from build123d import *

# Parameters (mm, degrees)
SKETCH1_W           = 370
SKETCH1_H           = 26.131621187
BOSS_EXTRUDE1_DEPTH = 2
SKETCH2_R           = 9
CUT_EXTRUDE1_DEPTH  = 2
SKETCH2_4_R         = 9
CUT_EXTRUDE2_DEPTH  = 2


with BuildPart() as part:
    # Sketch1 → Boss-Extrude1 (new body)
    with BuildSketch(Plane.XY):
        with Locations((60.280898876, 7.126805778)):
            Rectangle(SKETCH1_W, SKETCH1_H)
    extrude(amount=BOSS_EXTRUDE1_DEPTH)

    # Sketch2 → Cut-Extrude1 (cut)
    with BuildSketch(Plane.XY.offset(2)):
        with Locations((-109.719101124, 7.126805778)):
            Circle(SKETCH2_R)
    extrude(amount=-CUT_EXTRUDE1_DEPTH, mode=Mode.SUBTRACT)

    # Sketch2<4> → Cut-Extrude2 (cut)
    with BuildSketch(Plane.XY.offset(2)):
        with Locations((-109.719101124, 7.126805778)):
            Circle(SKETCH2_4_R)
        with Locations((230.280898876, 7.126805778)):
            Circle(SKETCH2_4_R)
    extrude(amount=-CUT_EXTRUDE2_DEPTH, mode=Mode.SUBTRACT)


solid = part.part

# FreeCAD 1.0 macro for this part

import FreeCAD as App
import Part
import Sketcher

V = App.Vector
Q = App.Units.Quantity


def add_polygon(sketch, points):
    """Adds a closed chain of lines whose ends are joined by coincident constraints."""
    first, n = sketch.GeometryCount, len(points)
    for a, b in zip(points, points[1:] + points[:1]):
        sketch.addGeometry(Part.LineSegment(App.Vector(*a, 0), App.Vector(*b, 0)), False)
    for i in range(n):
        sketch.addConstraint(Sketcher.Constraint("Coincident", first + i, 2, first + (i + 1) % n, 1))

doc = App.newDocument("Part")
body = doc.addObject("PartDesign::Body", "Body")

sketch1 = body.newObject("Sketcher::SketchObject", "Sketch")
sketch1.AttachmentSupport = (doc.getObject("XY_Plane"), [""])
sketch1.MapMode = "FlatFace"
add_polygon(sketch1, [(-125, 20), (-125, -6), (245, -6), (245, 20)])
sketch1.addConstraint([
    Sketcher.Constraint("Vertical", 0),
    Sketcher.Constraint("Horizontal", 1),
    Sketcher.Constraint("Vertical", 2),
    Sketcher.Constraint("Horizontal", 3),
    Sketcher.Constraint("DistanceX", 1, 1, 1, 2, Q("370 mm")),
    Sketcher.Constraint("DistanceY", 0, 2, 0, 1, Q("26.131621 mm")),
    Sketcher.Constraint("DistanceX", 0, 2, -1, 1, Q("124.719101 mm")),
    Sketcher.Constraint("DistanceY", 0, 2, -1, 1, Q("5.939005 mm")),
])
pad1 = body.newObject("PartDesign::Pad", "Pad")
pad1.Profile = sketch1
pad1.Length = 2

sketch2 = body.newObject("Sketcher::SketchObject", "Sketch001")
sketch2.AttachmentSupport = (doc.getObject("XY_Plane"), [""])
sketch2.MapMode = "FlatFace"
sketch2.AttachmentOffset = App.Placement(V(0, 0, 2), App.Rotation())
sketch2.addGeometry(Part.Circle(V(-110, 7, 0), V(0, 0, 1), 9), False)
sketch2.addConstraint([
    Sketcher.Constraint("Diameter", 0, Q("18 mm")),
    Sketcher.Constraint("DistanceX", 0, 3, -1, 1, Q("109.719101 mm")),
    Sketcher.Constraint("DistanceY", -1, 1, 0, 3, Q("7.126806 mm")),
])
pocket1 = body.newObject("PartDesign::Pocket", "Pocket")
pocket1.Profile = sketch2
pocket1.Length = 2

sketch3 = body.newObject("Sketcher::SketchObject", "Sketch002")
sketch3.AttachmentSupport = (doc.getObject("XY_Plane"), [""])
sketch3.MapMode = "FlatFace"
sketch3.AttachmentOffset = App.Placement(V(0, 0, 2), App.Rotation())
sketch3.addGeometry([
    Part.Circle(V(-110, 7, 0), V(0, 0, 1), 9),
    Part.Circle(V(230, 7, 0), V(0, 0, 1), 9),
], False)
sketch3.addConstraint([
    Sketcher.Constraint("Equal", 0, 1),
    Sketcher.Constraint("Horizontal", 0, 3, 1, 3),
    Sketcher.Constraint("Diameter", 0, Q("18 mm")),
    Sketcher.Constraint("DistanceX", 0, 3, 1, 3, Q("340 mm")),
    Sketcher.Constraint("DistanceX", 0, 3, -1, 1, Q("109.719101 mm")),
    Sketcher.Constraint("DistanceY", -1, 1, 0, 3, Q("7.126806 mm")),
])
pocket2 = body.newObject("PartDesign::Pocket", "Pocket001")
pocket2.Profile = sketch3
pocket2.Length = 2

doc.recompute()
